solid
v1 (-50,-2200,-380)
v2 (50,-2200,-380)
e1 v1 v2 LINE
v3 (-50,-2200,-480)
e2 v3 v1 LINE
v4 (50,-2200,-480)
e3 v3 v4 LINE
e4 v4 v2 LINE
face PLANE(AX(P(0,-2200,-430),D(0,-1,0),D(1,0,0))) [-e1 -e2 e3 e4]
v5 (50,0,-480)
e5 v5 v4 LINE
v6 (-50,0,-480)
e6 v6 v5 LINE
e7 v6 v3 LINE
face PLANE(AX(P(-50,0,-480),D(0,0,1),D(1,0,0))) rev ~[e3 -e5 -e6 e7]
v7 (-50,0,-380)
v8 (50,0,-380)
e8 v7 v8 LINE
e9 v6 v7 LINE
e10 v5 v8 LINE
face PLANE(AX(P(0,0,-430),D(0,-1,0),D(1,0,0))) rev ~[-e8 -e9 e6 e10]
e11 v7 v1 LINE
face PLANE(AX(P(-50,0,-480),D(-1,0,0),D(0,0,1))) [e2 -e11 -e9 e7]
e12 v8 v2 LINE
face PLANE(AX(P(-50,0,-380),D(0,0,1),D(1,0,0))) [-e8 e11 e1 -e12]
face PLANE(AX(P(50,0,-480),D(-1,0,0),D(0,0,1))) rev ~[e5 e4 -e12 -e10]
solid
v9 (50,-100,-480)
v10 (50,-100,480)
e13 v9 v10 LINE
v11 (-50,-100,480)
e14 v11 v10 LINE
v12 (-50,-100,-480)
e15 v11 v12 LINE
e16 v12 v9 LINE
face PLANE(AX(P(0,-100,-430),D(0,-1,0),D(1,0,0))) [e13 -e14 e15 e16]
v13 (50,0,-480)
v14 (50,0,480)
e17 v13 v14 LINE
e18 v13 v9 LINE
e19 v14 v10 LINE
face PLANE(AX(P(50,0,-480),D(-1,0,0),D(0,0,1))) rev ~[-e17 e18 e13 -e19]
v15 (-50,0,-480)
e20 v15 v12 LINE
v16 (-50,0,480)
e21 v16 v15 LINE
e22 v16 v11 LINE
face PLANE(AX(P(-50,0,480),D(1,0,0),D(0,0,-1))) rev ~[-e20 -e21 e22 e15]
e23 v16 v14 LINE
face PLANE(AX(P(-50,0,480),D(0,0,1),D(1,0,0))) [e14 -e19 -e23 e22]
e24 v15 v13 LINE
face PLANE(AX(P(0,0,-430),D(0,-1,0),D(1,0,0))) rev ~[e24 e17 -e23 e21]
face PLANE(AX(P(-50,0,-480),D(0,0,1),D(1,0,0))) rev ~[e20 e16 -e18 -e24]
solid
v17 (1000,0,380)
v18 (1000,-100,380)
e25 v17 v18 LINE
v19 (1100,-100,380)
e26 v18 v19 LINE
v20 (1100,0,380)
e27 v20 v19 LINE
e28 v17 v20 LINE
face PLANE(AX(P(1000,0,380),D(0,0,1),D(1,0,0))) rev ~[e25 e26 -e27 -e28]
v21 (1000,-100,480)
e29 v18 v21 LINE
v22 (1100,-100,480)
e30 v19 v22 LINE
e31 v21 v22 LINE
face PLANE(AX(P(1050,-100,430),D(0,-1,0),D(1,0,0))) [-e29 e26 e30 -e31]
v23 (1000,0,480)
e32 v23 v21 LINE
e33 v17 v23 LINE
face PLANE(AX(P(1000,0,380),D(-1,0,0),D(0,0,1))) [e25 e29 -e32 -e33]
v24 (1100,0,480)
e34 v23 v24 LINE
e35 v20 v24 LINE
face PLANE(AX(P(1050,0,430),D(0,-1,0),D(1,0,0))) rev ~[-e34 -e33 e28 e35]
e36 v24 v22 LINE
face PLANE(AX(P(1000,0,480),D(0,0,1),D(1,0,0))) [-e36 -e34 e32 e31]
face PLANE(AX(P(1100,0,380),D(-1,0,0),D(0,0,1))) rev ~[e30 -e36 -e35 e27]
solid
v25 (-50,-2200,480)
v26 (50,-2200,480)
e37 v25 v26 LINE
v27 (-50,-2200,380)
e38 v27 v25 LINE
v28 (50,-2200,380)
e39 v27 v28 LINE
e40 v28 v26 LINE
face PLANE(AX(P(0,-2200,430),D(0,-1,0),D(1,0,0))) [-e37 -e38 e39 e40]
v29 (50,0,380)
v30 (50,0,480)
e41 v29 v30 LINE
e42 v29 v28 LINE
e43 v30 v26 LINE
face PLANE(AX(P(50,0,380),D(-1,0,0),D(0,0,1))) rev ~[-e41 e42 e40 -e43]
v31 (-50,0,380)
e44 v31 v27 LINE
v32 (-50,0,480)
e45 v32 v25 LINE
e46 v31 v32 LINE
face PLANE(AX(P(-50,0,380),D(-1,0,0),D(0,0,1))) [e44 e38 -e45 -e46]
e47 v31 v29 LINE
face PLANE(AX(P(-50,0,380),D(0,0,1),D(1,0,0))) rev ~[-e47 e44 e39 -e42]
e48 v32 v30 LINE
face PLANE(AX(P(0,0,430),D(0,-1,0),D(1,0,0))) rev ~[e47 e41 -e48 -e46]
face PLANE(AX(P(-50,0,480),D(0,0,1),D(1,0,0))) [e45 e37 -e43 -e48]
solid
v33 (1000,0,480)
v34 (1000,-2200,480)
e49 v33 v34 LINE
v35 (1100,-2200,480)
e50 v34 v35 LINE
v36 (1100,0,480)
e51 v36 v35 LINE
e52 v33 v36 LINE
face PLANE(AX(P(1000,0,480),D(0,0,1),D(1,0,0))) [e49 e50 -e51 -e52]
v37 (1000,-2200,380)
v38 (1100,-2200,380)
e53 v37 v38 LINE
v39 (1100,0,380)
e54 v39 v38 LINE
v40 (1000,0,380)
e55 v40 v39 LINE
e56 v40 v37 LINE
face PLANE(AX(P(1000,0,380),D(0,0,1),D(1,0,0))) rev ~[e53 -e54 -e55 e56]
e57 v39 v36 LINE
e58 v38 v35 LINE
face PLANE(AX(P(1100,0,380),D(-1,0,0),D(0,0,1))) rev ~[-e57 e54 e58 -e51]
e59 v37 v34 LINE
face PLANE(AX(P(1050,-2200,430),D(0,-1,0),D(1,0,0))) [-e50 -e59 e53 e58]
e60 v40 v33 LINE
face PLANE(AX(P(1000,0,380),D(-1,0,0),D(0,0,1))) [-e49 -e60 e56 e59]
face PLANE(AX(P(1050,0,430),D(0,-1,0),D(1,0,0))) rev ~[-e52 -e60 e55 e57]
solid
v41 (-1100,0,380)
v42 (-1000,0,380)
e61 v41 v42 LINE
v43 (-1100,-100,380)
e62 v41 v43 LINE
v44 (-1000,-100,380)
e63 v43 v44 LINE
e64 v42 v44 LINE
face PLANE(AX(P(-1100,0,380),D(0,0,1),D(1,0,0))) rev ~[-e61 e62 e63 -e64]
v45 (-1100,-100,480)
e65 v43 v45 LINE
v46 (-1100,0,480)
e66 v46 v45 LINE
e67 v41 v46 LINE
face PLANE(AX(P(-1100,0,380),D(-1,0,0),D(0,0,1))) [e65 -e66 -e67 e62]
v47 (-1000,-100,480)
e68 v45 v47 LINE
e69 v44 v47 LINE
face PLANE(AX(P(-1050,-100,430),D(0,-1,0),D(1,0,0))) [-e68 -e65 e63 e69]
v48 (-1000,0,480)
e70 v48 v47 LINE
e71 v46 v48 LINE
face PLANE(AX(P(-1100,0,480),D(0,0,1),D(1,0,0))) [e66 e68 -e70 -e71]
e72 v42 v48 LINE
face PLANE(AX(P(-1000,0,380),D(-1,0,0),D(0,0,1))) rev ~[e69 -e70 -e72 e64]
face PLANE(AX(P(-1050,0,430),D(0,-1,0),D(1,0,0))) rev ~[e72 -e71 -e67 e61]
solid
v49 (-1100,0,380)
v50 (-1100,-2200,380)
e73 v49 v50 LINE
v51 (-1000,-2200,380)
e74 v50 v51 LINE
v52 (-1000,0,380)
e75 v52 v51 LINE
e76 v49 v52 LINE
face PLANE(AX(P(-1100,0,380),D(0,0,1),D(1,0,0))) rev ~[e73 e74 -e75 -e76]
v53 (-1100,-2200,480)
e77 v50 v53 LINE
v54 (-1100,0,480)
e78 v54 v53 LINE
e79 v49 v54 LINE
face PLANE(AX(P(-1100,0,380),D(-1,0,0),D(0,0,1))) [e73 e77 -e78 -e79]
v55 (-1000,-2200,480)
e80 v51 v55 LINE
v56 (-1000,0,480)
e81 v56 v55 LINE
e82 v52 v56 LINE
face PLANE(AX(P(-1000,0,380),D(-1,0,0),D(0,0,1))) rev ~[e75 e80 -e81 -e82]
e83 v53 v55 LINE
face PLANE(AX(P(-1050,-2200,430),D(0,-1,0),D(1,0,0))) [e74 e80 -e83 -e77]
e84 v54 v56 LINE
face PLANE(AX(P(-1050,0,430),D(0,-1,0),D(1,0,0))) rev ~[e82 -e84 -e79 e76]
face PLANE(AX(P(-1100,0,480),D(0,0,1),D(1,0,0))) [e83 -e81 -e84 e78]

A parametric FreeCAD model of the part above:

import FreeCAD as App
import Part
import Sketcher

doc = App.newDocument("Part")
body = doc.addObject("PartDesign::Body", "Body")
body.AllowCompound = True

# Sketch on XZ plane
sketch1 = body.newObject("Sketcher::SketchObject", "Sketch")
sketch1.AttachmentSupport = (doc.getObject("XZ_Plane"), [""])
sketch1.MapMode = "FlatFace"
sketch1.addGeometry([
    Part.LineSegment(App.Vector(-50, 480, 0), App.Vector(-50, 380, 0)),  # 0
    Part.LineSegment(App.Vector(-50, 380, 0), App.Vector(50, 380, 0)),  # 1
    Part.LineSegment(App.Vector(50, 380, 0), App.Vector(50, 480, 0)),  # 2
    Part.LineSegment(App.Vector(50, 480, 0), App.Vector(-50, 480, 0)),  # 3
    Part.LineSegment(App.Vector(1000, 480, 0), App.Vector(1000, 380, 0)),  # 4
    Part.LineSegment(App.Vector(1000, 380, 0), App.Vector(1100, 380, 0)),  # 5
    Part.LineSegment(App.Vector(1100, 380, 0), App.Vector(1100, 480, 0)),  # 6
    Part.LineSegment(App.Vector(1100, 480, 0), App.Vector(1000, 480, 0)),  # 7
    Part.LineSegment(App.Vector(-50, -380, 0), App.Vector(-50, -480, 0)),  # 8
    Part.LineSegment(App.Vector(-50, -480, 0), App.Vector(50, -480, 0)),  # 9
    Part.LineSegment(App.Vector(50, -480, 0), App.Vector(50, -380, 0)),  # 10
    Part.LineSegment(App.Vector(50, -380, 0), App.Vector(-50, -380, 0)),  # 11
    Part.LineSegment(App.Vector(-1100, 480, 0), App.Vector(-1100, 380, 0)),  # 12
    Part.LineSegment(App.Vector(-1100, 380, 0), App.Vector(-1000, 380, 0)),  # 13
    Part.LineSegment(App.Vector(-1000, 380, 0), App.Vector(-1000, 480, 0)),  # 14
    Part.LineSegment(App.Vector(-1000, 480, 0), App.Vector(-1100, 480, 0)),  # 15
], False)
sketch1.addConstraint([
    Sketcher.Constraint("Coincident", 0, 2, 1, 1),
    Sketcher.Constraint("Coincident", 1, 2, 2, 1),
    Sketcher.Constraint("Coincident", 2, 2, 3, 1),
    Sketcher.Constraint("Coincident", 3, 2, 0, 1),
    Sketcher.Constraint("Coincident", 4, 2, 5, 1),
    Sketcher.Constraint("Coincident", 5, 2, 6, 1),
    Sketcher.Constraint("Coincident", 6, 2, 7, 1),
    Sketcher.Constraint("Coincident", 7, 2, 4, 1),
    Sketcher.Constraint("Coincident", 8, 2, 9, 1),
    Sketcher.Constraint("Coincident", 9, 2, 10, 1),
    Sketcher.Constraint("Coincident", 10, 2, 11, 1),
    Sketcher.Constraint("Coincident", 11, 2, 8, 1),
    Sketcher.Constraint("Coincident", 12, 2, 13, 1),
    Sketcher.Constraint("Coincident", 13, 2, 14, 1),
    Sketcher.Constraint("Coincident", 14, 2, 15, 1),
    Sketcher.Constraint("Coincident", 15, 2, 12, 1),
    Sketcher.Constraint("Vertical", 0),
    Sketcher.Constraint("Horizontal", 1),
    Sketcher.Constraint("Vertical", 2),
    Sketcher.Constraint("Horizontal", 3),
    Sketcher.Constraint("Vertical", 4),
    Sketcher.Constraint("Horizontal", 5),
    Sketcher.Constraint("Vertical", 6),
    Sketcher.Constraint("Horizontal", 7),
    Sketcher.Constraint("Vertical", 8),
    Sketcher.Constraint("Horizontal", 9),
    Sketcher.Constraint("Vertical", 10),
    Sketcher.Constraint("Horizontal", 11),
    Sketcher.Constraint("Vertical", 12),
    Sketcher.Constraint("Horizontal", 13),
    Sketcher.Constraint("Vertical", 14),
    Sketcher.Constraint("Horizontal", 15),
    Sketcher.Constraint("Symmetric", 2, 2, 8, 2, -1, 1),
    Sketcher.Constraint("Symmetric", 0, 2, 10, 2, -1, 1),
    Sketcher.Constraint("Symmetric", 5, 2, 12, 2, -2),
    Sketcher.Constraint("Symmetric", 7, 2, 14, 2, -2),
    Sketcher.Constraint("Horizontal", 1, 2, 4, 2),
    Sketcher.Constraint("Horizontal", 3, 2, 6, 2),
    Sketcher.Constraint("Vertical", 3, 2, 8, 2),
    Sketcher.Constraint("Equal", 3, 5),
    Sketcher.Constraint("Equal", 15, 0),
    Sketcher.Constraint("DistanceX", 1, 1, 1, 2, 100.0),
    Sketcher.Constraint("DistanceY", -1, 1, 0, 2, 380.0),
    Sketcher.Constraint("DistanceX", -1, 1, 4, 2, 1000.0),
])
pad1 = body.newObject("PartDesign::Pad", "Pad")
pad1.Profile = sketch1
pad1.Length = 2200
body2 = doc.addObject("PartDesign::Body", "Body001")
body2.AllowCompound = True

# Sketch on XZ plane
sketch2 = body2.newObject("Sketcher::SketchObject", "Sketch001")
sketch2.AttachmentSupport = (doc.getObject("XZ_Plane001"), [""])
sketch2.MapMode = "FlatFace"
sketch2.addGeometry([
    Part.LineSegment(App.Vector(-50, -480, 0), App.Vector(50, -480, 0)),  # 0
    Part.LineSegment(App.Vector(50, -480, 0), App.Vector(50, 480, 0)),  # 1
    Part.LineSegment(App.Vector(50, 480, 0), App.Vector(-50, 480, 0)),  # 2
    Part.LineSegment(App.Vector(-50, 480, 0), App.Vector(-50, -480, 0)),  # 3
    Part.LineSegment(App.Vector(-1100, 480, 0), App.Vector(-1100, 380, 0)),  # 4
    Part.LineSegment(App.Vector(-1100, 380, 0), App.Vector(-1000, 380, 0)),  # 5
    Part.LineSegment(App.Vector(-1000, 380, 0), App.Vector(-1000, 480, 0)),  # 6
    Part.LineSegment(App.Vector(-1000, 480, 0), App.Vector(-1100, 480, 0)),  # 7
    Part.LineSegment(App.Vector(1000, 480, 0), App.Vector(1000, 380, 0)),  # 8
    Part.LineSegment(App.Vector(1000, 380, 0), App.Vector(1100, 380, 0)),  # 9
    Part.LineSegment(App.Vector(1100, 380, 0), App.Vector(1100, 480, 0)),  # 10
    Part.LineSegment(App.Vector(1100, 480, 0), App.Vector(1000, 480, 0)),  # 11
], False)
sketch2.addConstraint([
    Sketcher.Constraint("Coincident", 0, 2, 1, 1),
    Sketcher.Constraint("Coincident", 1, 2, 2, 1),
    Sketcher.Constraint("Coincident", 2, 2, 3, 1),
    Sketcher.Constraint("Coincident", 3, 2, 0, 1),
    Sketcher.Constraint("Coincident", 4, 2, 5, 1),
    Sketcher.Constraint("Coincident", 5, 2, 6, 1),
    Sketcher.Constraint("Coincident", 6, 2, 7, 1),
    Sketcher.Constraint("Coincident", 7, 2, 4, 1),
    Sketcher.Constraint("Coincident", 8, 2, 9, 1),
    Sketcher.Constraint("Coincident", 9, 2, 10, 1),
    Sketcher.Constraint("Coincident", 10, 2, 11, 1),
    Sketcher.Constraint("Coincident", 11, 2, 8, 1),
    Sketcher.Constraint("Horizontal", 0),
    Sketcher.Constraint("Vertical", 1),
    Sketcher.Constraint("Horizontal", 2),
    Sketcher.Constraint("Vertical", 3),
    Sketcher.Constraint("Vertical", 4),
    Sketcher.Constraint("Horizontal", 5),
    Sketcher.Constraint("Vertical", 6),
    Sketcher.Constraint("Horizontal", 7),
    Sketcher.Constraint("Vertical", 8),
    Sketcher.Constraint("Horizontal", 9),
    Sketcher.Constraint("Vertical", 10),
    Sketcher.Constraint("Horizontal", 11),
    Sketcher.Constraint("Symmetric", 0, 2, 2, 2, -1, 1),
    Sketcher.Constraint("Symmetric", 5, 2, 8, 2, -2),
    Sketcher.Constraint("Symmetric", 7, 2, 10, 2, -2),
    Sketcher.Constraint("Horizontal", 2, 2, 6, 2),
    Sketcher.Constraint("Equal", 2, 5),
    Sketcher.Constraint("Equal", 11, 4),
    Sketcher.Constraint("DistanceX", 0, 1, 0, 2, 100.0),
    Sketcher.Constraint("DistanceY", 1, 1, 1, 2, 960.0),
    Sketcher.Constraint("DistanceX", 4, 2, -1, 1, 1100.0),
])
pad2 = body2.newObject("PartDesign::Pad", "Pad001")
pad2.Profile = sketch2
pad2.Length = 100

doc.recompute()
